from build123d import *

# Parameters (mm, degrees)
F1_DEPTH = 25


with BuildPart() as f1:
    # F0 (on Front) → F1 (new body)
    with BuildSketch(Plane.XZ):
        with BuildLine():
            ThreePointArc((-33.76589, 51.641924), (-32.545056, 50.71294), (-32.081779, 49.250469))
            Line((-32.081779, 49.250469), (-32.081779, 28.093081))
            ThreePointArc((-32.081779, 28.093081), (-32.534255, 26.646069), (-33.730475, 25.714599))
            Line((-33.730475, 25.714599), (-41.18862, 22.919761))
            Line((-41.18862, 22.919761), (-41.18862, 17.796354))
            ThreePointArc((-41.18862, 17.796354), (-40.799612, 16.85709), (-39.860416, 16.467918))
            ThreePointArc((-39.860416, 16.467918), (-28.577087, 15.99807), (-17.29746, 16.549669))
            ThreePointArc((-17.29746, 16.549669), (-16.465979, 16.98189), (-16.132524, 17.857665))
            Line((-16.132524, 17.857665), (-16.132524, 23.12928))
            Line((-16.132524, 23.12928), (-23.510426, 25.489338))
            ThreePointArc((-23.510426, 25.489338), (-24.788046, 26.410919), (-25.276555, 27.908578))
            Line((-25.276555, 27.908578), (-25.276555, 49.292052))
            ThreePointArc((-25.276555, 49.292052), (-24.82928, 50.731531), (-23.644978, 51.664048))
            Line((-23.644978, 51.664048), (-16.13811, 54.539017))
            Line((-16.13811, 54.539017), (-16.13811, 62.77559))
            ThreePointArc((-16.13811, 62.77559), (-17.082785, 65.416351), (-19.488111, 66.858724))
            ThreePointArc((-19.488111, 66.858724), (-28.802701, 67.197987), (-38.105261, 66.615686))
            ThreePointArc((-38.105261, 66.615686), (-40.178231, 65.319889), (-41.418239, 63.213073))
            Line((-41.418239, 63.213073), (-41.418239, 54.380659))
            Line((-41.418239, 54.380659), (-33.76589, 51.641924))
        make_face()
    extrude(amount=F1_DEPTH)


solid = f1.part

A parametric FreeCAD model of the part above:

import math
import FreeCAD as App
import Part
import Sketcher
Q = App.Units.Quantity

doc = App.newDocument("Part")
params = doc.addObject("Spreadsheet::Sheet", "Params")
for row, (alias, value) in enumerate([
    ("sketch1_radius", "0.1000001 in"),
    ("sketch1_radius2", "0.1 in"),
    ("sketch1_radius3", "0.1 in"),
    ("sketch1_radius4", "0.1 in"),
    ("pad1_length", "25 mm"),
], start=1):
    params.set(f"A{row}", alias)
    params.set(f"B{row}", "=" + value)
    params.setAlias(f"B{row}", alias)

body = doc.addObject("PartDesign::Body", "Body")

# Sketch on XZ plane
sketch1 = doc.addObject("Sketcher::SketchObject", "Sketch")
body.addObject(sketch1)
sketch1.AttachmentSupport = (doc.XZ_Plane, [""])
sketch1.MapMode = "FlatFace"
sketch1.addGeometry([
    Part.ArcOfCircle(Part.Circle(App.Vector(-34.621781, 49.250468, 0), App.Vector(0, 0, 1), 2.540002), math.radians(0.000014), math.radians(70.307949)),  # 0
    Part.LineSegment(App.Vector(-32.081779, 49.250469, 0), App.Vector(-32.081779, 28.093081, 0)),  # 1
    Part.ArcOfCircle(Part.Circle(App.Vector(-34.621779, 28.093081, 0), App.Vector(0, 0, 1), 2.54), math.radians(-69.457201), math.radians(0.000005)),  # 2
    Part.LineSegment(App.Vector(-33.730475, 25.714599, 0), App.Vector(-41.18862, 22.919761, 0)),  # 3
    Part.LineSegment(App.Vector(-41.18862, 22.919761, 0), App.Vector(-41.18862, 17.796354, 0)),  # 4
    Part.ArcOfCircle(Part.Circle(App.Vector(-39.860184, 17.796354, 0), App.Vector(0, 0, 1), 1.328436), math.radians(-179.999985), math.radians(-90.010022)),  # 5
    Part.ArcOfCircle(Part.Circle(App.Vector(-29.029466, 140.852893, 0), App.Vector(0, 0, 1), 124.855642), math.radians(-94.976536), math.radians(-84.608273)),  # 6
    Part.ArcOfCircle(Part.Circle(App.Vector(-17.449304, 17.857665, 0), App.Vector(0, 0, 1), 1.31678), math.radians(-83.378225), math.radians(0.000008)),  # 7
    Part.LineSegment(App.Vector(-16.132524, 17.857665, 0), App.Vector(-16.132524, 23.12928, 0)),  # 8
    Part.LineSegment(App.Vector(-16.132524, 23.12928, 0), App.Vector(-23.510426, 25.489338, 0)),  # 9
    Part.ArcOfCircle(Part.Circle(App.Vector(-22.736554, 27.908579, 0), App.Vector(0, 0, 1), 2.540001), math.radians(-179.999976), math.radians(-107.738547)),  # 10
    Part.LineSegment(App.Vector(-25.276555, 27.908578, 0), App.Vector(-25.276555, 49.292052, 0)),  # 11
    Part.ArcOfCircle(Part.Circle(App.Vector(-22.736554, 49.292051, 0), App.Vector(0, 0, 1), 2.540001), math.radians(110.955761), math.radians(179.999978)),  # 12
    Part.LineSegment(App.Vector(-23.644978, 51.664048, 0), App.Vector(-16.13811, 54.539017, 0)),  # 13
    Part.LineSegment(App.Vector(-16.13811, 54.539017, 0), App.Vector(-16.13811, 62.77559, 0)),  # 14
    Part.ArcOfCircle(Part.Circle(App.Vector(-20.301468, 62.775588, 0), App.Vector(0, 0, 1), 4.163358), math.radians(0.000028), math.radians(78.734198)),  # 15
    Part.ArcOfCircle(Part.Circle(App.Vector(-27.572249, -27.056877, 0), App.Vector(0, 0, 1), 94.262895), math.radians(85.080178), math.radians(96.415675)),  # 16
    Part.ArcOfCircle(Part.Circle(App.Vector(-36.495109, 61.733791, 0), App.Vector(0, 0, 1), 5.140572), math.radians(108.253649), math.radians(163.275748)),  # 17
    Part.LineSegment(App.Vector(-41.418239, 63.213073, 0), App.Vector(-41.418239, 54.380659, 0)),  # 18
    Part.LineSegment(App.Vector(-41.418239, 54.380659, 0), App.Vector(-33.76589, 51.641924, 0)),  # 19
], False)
sketch1.addConstraint([
    Sketcher.Constraint("Coincident", 0, 1, 1, 1),
    Sketcher.Constraint("Coincident", 1, 2, 2, 2),
    Sketcher.Constraint("Coincident", 2, 1, 3, 1),
    Sketcher.Constraint("Coincident", 3, 2, 4, 1),
    Sketcher.Constraint("Coincident", 4, 2, 5, 1),
    Sketcher.Constraint("Coincident", 5, 2, 6, 1),
    Sketcher.Constraint("Coincident", 6, 2, 7, 1),
    Sketcher.Constraint("Coincident", 7, 2, 8, 1),
    Sketcher.Constraint("Coincident", 8, 2, 9, 1),
    Sketcher.Constraint("Coincident", 9, 2, 10, 2),
    Sketcher.Constraint("Coincident", 10, 1, 11, 1),
    Sketcher.Constraint("Coincident", 11, 2, 12, 2),
    Sketcher.Constraint("Coincident", 12, 1, 13, 1),
    Sketcher.Constraint("Coincident", 13, 2, 14, 1),
    Sketcher.Constraint("Coincident", 14, 2, 15, 1),
    Sketcher.Constraint("Coincident", 15, 2, 16, 1),
    Sketcher.Constraint("Coincident", 16, 2, 17, 1),
    Sketcher.Constraint("Coincident", 17, 2, 18, 1),
    Sketcher.Constraint("Coincident", 18, 2, 19, 1),
    Sketcher.Constraint("Coincident", 19, 2, 0, 2),
    Sketcher.Constraint("Vertical", 1),
    Sketcher.Constraint("Vertical", 4),
    Sketcher.Constraint("Vertical", 8),
    Sketcher.Constraint("Vertical", 11),
    Sketcher.Constraint("Vertical", 14),
    Sketcher.Constraint("Vertical", 18),
    Sketcher.Constraint("Radius", 0, Q("0.1000001 in")),
    Sketcher.Constraint("Radius", 2, Q("0.1 in")),
    Sketcher.Constraint("Radius", 10, Q("0.1 in")),
    Sketcher.Constraint("Radius", 12, Q("0.1 in")),
    Sketcher.Constraint("Radius", 7, 1.31678),
    Sketcher.Constraint("Radius", 5, 1.328436),
    Sketcher.Constraint("Radius", 6, 124.855642),
    Sketcher.Constraint("Radius", 15, 4.163358),
    Sketcher.Constraint("Radius", 16, 94.262895),
    Sketcher.Constraint("Radius", 17, 5.140572),
    Sketcher.Constraint("DistanceY", 1, 2, 1, 1, 21.157388),
    Sketcher.Constraint("DistanceY", -1, 1, 2, 1, 25.714599),
    Sketcher.Constraint("DistanceY", 10, 3, 2, 3, 0.184502),
    Sketcher.Constraint("DistanceY", 10, 3, 1, 2, 0.184502),
    Sketcher.Constraint("DistanceY", 8, 2, 10, 3, 4.779299),
    Sketcher.Constraint("DistanceX", 9, 2, 8, 2, 7.377902),
    Sketcher.Constraint("DistanceX", 0, 1, 12, 1, 8.436801),
    Sketcher.Constraint("DistanceX", 15, 2, 14, 2, 3.350001),
    Sketcher.Constraint("DistanceY", 15, 3, 16, 2, 3.840098),
    Sketcher.Constraint("Distance", 9, 7.74618),
    Sketcher.Constraint("DistanceY", 4, 2, 4, 1, 5.123407),
    Sketcher.Constraint("DistanceY", 8, 1, 8, 2, 5.271615),
    Sketcher.Constraint("DistanceY", 11, 1, 11, 2, 21.383474),
    Sketcher.Constraint("DistanceY", 14, 1, 14, 2, 8.236573),
    Sketcher.Constraint("DistanceY", 18, 2, 18, 1, 8.832414),
    Sketcher.Constraint("DistanceX", 0, 3, -1, 1, 34.621781),
    Sketcher.Constraint("DistanceY", -1, 1, 0, 3, 49.250468),
    Sketcher.Constraint("DistanceY", -1, 1, 2, 3, 28.093081),
    Sketcher.Constraint("DistanceY", -1, 1, 12, 3, 49.292051),
    Sketcher.Constraint("DistanceX", 16, 3, -1, 1, 27.572249),
    Sketcher.Constraint("DistanceX", 17, 3, -1, 1, 36.495109),
    Sketcher.Constraint("DistanceY", -1, 1, 17, 3, 61.733791),
    Sketcher.Constraint("DistanceX", 3, 2, -1, 1, 41.18862),
    Sketcher.Constraint("DistanceY", -1, 1, 3, 2, 22.919761),
    Sketcher.Constraint("DistanceY", -1, 1, 5, 2, 16.467918),
    Sketcher.Constraint("DistanceX", 6, 2, -1, 1, 17.29746),
    Sketcher.Constraint("DistanceY", -1, 1, 6, 2, 16.549669),
    Sketcher.Constraint("DistanceY", -1, 1, 11, 2, 49.292052),
    Sketcher.Constraint("DistanceX", 13, 2, -1, 1, 16.13811),
    Sketcher.Constraint("DistanceY", -1, 1, 14, 2, 62.77559),
    Sketcher.Constraint("DistanceX", 17, 2, -1, 1, 41.418239),
    Sketcher.Constraint("DistanceX", 19, 2, -1, 1, 33.76589),
    Sketcher.Constraint("DistanceY", 2, 3, 6, 3, 112.759812),
    Sketcher.Constraint("DistanceX", 5, 3, 7, 3, 22.41088),
])
sketch1.setExpression("Constraints[26]", "Params.sketch1_radius")
sketch1.setExpression("Constraints[27]", "Params.sketch1_radius2")
sketch1.setExpression("Constraints[28]", "Params.sketch1_radius3")
sketch1.setExpression("Constraints[29]", "Params.sketch1_radius4")
pad1 = doc.addObject("PartDesign::Pad", "Pad")
body.addObject(pad1)
pad1.Profile = sketch1
pad1.setExpression("Length", "Params.pad1_length")

doc.recompute()
